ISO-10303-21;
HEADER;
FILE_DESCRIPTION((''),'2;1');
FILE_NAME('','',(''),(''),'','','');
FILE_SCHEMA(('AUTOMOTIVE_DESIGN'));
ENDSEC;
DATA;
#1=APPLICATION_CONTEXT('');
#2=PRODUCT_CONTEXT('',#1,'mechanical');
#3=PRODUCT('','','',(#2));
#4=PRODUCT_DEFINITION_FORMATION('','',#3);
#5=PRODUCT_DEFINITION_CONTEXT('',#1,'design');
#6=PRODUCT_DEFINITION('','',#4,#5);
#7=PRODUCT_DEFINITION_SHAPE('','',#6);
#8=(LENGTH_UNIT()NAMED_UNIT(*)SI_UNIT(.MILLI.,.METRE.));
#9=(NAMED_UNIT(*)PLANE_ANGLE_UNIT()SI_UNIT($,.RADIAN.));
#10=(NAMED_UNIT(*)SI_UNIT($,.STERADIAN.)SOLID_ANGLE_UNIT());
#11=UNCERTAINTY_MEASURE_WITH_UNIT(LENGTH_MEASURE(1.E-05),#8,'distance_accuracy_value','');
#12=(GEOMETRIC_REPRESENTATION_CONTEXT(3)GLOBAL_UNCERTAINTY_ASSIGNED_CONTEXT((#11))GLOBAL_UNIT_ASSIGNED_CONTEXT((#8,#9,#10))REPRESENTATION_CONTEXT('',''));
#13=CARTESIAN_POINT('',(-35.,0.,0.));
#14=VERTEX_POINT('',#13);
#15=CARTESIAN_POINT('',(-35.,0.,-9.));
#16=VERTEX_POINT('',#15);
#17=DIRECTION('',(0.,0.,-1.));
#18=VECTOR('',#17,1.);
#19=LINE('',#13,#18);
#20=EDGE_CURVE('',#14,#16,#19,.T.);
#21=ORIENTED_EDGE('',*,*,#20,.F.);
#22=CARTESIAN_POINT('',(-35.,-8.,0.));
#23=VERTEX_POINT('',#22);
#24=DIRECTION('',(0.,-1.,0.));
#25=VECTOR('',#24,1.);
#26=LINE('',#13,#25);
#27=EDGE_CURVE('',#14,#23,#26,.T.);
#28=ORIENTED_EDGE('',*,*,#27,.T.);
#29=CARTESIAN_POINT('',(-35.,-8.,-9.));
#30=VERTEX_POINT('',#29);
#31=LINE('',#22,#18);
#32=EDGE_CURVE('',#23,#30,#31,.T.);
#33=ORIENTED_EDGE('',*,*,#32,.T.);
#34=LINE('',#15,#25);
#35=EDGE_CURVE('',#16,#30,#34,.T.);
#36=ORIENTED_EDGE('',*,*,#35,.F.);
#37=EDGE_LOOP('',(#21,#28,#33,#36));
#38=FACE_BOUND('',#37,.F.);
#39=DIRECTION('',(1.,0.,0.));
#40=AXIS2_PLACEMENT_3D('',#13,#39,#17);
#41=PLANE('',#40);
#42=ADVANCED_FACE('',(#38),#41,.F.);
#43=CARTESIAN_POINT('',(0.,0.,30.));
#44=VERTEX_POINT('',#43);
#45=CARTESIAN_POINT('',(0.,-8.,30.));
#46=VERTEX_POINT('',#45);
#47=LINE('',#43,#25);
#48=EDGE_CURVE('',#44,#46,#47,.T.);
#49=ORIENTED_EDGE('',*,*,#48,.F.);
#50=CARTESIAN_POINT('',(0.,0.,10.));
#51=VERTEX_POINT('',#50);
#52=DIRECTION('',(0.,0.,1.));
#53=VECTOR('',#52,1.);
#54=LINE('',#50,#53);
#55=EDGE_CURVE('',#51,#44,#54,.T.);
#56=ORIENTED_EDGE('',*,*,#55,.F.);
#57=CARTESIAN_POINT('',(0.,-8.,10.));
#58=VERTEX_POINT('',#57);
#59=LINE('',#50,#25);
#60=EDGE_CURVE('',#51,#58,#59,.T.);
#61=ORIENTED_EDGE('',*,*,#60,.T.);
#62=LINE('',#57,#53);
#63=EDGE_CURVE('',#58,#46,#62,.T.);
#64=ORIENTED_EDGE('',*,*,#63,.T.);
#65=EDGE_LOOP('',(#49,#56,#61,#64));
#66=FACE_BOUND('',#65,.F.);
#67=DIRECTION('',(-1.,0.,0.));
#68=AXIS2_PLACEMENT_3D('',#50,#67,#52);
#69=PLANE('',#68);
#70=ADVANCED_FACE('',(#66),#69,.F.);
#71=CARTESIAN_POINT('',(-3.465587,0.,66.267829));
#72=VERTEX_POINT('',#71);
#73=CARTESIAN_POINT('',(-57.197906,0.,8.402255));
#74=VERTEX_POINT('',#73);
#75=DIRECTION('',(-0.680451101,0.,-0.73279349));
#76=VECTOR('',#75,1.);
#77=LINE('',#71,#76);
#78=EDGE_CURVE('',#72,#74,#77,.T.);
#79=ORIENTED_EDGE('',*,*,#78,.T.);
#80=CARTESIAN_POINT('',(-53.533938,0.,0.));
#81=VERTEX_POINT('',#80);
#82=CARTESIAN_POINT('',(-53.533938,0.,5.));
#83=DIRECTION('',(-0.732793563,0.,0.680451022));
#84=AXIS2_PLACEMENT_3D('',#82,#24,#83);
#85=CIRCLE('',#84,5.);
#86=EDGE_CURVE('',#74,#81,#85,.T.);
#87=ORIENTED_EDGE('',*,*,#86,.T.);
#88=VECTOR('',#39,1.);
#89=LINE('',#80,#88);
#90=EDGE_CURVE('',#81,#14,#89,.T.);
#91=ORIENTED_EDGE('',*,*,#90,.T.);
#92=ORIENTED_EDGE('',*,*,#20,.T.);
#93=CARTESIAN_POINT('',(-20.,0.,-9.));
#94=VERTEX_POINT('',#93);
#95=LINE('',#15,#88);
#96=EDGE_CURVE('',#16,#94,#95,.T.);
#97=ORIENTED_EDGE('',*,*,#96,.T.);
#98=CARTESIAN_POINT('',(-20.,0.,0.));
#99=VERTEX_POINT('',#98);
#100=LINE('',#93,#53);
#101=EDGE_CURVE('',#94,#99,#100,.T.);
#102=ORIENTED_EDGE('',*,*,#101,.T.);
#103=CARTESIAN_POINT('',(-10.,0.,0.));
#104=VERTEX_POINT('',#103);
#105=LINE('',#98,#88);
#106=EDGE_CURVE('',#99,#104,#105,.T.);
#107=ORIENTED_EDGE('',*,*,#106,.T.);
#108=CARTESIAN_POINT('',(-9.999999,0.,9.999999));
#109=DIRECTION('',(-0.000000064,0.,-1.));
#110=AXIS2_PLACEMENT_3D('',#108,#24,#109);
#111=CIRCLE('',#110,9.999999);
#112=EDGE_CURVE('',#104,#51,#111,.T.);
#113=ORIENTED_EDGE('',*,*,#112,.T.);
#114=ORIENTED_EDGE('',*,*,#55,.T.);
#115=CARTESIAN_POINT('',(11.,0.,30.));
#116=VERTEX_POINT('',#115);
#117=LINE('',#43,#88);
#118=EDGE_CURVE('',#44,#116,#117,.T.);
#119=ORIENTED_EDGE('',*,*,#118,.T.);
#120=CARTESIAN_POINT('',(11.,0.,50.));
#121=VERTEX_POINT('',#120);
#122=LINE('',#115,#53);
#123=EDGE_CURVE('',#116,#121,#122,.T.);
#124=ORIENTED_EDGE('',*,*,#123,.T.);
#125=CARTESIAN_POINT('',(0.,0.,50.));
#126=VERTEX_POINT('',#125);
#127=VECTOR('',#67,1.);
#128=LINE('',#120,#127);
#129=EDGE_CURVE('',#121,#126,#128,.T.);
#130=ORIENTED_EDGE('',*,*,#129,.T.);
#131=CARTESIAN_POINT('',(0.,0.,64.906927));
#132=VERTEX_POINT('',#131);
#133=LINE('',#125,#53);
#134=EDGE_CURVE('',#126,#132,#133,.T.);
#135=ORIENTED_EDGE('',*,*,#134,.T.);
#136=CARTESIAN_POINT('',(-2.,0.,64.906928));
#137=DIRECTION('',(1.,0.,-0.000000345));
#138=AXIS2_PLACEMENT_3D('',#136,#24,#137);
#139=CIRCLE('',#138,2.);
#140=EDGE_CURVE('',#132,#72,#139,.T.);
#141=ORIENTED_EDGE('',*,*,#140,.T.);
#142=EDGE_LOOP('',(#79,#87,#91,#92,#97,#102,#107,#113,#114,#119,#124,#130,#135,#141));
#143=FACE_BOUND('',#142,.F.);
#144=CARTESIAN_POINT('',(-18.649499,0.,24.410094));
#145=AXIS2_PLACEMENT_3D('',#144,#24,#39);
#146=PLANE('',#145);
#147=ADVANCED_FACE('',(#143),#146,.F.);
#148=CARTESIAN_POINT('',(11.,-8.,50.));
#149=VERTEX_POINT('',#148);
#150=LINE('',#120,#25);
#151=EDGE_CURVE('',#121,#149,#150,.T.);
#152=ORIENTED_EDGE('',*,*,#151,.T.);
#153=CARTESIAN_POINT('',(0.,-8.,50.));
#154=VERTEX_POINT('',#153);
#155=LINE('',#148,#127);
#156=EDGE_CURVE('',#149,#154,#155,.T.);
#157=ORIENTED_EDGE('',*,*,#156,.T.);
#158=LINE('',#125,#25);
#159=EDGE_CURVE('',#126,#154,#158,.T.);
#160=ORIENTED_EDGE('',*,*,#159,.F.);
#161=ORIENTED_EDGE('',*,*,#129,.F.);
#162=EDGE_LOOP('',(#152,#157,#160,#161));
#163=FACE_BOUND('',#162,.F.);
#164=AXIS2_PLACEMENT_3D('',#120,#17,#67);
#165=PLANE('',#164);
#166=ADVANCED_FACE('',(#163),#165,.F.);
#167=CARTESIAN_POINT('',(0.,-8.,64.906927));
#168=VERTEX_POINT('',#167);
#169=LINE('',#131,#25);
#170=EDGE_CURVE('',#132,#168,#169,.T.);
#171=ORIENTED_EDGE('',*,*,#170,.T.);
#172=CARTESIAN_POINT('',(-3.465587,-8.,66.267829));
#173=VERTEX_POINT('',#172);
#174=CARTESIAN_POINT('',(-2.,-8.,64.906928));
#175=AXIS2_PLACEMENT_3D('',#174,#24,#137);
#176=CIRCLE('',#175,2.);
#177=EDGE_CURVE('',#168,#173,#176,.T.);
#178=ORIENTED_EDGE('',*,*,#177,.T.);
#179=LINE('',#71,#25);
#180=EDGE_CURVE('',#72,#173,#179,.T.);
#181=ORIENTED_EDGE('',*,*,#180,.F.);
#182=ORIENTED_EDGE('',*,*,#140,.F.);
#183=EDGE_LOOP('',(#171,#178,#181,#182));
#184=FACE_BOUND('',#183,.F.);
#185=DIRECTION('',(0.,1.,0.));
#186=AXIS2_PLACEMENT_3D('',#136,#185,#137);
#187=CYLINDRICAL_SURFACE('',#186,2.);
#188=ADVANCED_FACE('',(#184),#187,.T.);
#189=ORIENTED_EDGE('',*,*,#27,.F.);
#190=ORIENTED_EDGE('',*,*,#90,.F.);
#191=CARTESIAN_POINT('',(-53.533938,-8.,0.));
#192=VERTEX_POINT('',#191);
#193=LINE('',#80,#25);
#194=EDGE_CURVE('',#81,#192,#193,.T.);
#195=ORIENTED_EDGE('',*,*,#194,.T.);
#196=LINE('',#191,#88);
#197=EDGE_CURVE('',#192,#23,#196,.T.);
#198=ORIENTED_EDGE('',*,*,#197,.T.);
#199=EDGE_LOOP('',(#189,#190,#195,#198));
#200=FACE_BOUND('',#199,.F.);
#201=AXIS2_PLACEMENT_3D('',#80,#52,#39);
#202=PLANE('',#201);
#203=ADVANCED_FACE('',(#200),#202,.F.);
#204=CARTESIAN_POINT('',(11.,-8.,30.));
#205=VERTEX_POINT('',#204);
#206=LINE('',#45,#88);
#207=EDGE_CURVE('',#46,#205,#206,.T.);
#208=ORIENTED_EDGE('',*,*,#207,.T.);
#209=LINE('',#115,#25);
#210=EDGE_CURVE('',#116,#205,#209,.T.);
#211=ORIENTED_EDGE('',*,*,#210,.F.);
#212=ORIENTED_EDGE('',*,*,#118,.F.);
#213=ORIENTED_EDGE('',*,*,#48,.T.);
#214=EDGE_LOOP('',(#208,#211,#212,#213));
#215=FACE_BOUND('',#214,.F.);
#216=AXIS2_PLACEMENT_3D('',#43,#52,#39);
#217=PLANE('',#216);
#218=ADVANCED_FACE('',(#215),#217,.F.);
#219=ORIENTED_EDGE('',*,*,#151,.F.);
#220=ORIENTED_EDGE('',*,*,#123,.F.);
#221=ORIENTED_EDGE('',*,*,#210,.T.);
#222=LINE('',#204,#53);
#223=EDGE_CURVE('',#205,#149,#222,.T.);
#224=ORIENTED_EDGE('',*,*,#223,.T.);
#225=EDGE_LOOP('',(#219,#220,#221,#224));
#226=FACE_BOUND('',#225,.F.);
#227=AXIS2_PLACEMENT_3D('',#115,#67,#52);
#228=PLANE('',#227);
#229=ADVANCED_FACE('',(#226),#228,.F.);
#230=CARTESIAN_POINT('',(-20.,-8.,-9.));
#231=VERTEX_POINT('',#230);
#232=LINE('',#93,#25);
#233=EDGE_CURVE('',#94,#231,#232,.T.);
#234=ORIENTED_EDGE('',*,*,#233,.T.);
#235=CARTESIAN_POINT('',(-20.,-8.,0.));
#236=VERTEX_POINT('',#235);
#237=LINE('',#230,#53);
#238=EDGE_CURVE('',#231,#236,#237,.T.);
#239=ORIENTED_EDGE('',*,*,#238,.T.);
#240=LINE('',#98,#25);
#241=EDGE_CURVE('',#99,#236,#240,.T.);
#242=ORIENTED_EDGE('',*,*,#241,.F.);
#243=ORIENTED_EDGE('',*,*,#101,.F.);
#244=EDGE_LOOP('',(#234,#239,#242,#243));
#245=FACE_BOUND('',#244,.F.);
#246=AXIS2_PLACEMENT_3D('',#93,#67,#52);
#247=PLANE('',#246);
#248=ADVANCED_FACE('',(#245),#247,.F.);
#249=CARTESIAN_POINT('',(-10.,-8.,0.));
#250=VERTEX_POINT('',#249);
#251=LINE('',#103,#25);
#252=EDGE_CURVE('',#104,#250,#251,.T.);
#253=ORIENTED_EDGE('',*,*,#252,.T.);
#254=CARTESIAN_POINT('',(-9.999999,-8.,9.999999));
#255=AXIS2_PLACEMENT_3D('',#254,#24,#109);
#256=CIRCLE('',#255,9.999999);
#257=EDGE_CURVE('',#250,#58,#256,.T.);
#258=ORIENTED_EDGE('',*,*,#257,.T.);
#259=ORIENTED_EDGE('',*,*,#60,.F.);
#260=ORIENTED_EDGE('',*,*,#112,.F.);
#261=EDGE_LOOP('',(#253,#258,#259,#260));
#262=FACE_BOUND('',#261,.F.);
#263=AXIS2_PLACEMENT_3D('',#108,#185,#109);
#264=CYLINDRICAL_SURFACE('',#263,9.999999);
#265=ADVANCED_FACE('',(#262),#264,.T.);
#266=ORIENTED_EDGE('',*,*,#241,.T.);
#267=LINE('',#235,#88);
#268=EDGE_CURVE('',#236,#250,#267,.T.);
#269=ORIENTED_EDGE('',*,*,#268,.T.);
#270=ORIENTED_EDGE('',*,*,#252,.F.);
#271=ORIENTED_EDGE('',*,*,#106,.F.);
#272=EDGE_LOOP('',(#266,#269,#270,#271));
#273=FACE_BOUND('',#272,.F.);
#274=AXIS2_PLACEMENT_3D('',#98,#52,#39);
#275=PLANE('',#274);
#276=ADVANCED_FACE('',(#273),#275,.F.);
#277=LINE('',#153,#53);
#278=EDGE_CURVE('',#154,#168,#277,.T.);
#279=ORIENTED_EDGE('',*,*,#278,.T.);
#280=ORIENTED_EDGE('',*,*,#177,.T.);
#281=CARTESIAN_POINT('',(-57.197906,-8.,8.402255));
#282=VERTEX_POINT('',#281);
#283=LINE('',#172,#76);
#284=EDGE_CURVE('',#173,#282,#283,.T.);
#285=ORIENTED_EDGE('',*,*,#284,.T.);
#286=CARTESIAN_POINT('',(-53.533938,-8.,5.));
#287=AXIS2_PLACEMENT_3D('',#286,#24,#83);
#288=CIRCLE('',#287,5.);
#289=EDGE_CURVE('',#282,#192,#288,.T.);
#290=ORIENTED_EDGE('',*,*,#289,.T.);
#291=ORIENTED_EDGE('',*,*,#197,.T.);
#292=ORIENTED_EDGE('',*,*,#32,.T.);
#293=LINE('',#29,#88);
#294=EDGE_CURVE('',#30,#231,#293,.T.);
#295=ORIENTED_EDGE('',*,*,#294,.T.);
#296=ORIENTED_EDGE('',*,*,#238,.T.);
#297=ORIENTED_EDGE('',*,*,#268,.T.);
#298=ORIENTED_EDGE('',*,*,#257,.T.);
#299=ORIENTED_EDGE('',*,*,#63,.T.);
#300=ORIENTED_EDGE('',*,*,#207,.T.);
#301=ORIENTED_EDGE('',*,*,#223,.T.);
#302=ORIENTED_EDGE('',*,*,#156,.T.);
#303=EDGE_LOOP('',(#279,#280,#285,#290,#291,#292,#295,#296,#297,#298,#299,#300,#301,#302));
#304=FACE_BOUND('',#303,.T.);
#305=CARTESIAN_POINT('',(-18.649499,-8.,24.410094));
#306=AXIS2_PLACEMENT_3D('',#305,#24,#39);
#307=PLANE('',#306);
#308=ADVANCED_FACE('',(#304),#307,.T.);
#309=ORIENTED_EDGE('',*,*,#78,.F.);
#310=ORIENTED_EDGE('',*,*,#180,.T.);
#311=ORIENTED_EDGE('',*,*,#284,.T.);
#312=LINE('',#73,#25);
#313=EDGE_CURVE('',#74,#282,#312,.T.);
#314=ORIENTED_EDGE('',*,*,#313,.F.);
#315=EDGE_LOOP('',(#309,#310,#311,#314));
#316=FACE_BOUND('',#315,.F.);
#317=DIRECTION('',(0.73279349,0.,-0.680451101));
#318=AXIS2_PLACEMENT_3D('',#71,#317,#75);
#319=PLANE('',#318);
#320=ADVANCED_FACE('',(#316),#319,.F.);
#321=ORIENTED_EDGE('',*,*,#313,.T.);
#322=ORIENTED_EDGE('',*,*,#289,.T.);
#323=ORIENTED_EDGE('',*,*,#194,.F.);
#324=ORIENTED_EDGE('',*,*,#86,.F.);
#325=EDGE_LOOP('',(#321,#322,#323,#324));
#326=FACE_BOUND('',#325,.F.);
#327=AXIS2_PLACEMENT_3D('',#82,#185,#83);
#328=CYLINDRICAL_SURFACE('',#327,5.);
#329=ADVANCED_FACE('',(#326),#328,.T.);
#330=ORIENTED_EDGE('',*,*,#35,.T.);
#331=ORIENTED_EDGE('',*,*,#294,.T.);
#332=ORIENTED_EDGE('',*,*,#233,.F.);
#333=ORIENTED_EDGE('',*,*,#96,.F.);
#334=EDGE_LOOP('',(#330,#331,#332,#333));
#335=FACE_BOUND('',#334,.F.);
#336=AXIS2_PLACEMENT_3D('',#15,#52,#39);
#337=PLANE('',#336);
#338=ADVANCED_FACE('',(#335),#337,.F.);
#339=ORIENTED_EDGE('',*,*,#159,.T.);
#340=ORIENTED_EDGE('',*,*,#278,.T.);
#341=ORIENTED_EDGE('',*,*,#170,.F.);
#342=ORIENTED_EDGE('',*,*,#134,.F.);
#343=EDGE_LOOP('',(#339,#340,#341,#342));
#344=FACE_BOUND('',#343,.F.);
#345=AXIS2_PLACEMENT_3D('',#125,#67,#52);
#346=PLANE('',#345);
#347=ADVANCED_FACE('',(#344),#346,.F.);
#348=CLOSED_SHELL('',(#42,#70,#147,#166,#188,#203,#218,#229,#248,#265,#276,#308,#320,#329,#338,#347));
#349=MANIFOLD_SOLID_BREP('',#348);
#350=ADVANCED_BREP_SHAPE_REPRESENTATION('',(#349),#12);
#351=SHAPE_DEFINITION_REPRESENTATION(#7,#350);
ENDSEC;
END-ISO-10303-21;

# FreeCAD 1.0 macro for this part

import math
import FreeCAD as App
import Part
import Sketcher
from FreeCAD import Vector
Q = App.Units.Quantity

doc = App.newDocument("Part")
body = doc.addObject("PartDesign::Body", "Body")

sketch1 = body.newObject("Sketcher::SketchObject", "Sketch")
sketch1.AttachmentSupport = (doc.getObject("XZ_Plane"), [""])
sketch1.MapMode = "FlatFace"
sketch1.addGeometry(Part.ArcOfCircle(Part.Circle(Vector(-53.533938, 5, 0), Vector(0, 0, 1), 5), math.radians(137.121102), math.radians(270.000003)), False)
sketch1.addGeometry(Part.LineSegment(Vector(-53.533938, 0, 0), Vector(-35, 0, 0)), False)
sketch1.addGeometry(Part.LineSegment(Vector(-35, 0, 0), Vector(-35, -9, 0)), False)
sketch1.addGeometry(Part.LineSegment(Vector(-35, -9, 0), Vector(-20, -9, 0)), False)
sketch1.addGeometry(Part.LineSegment(Vector(-20, -9, 0), Vector(-20, 0, 0)), False)
sketch1.addGeometry(Part.LineSegment(Vector(-20, 0, 0), Vector(-10, 0, 0)), False)
sketch1.addGeometry(Part.ArcOfCircle(Part.Circle(Vector(-9.999999, 9.999999, 0), Vector(0, 0, 1), 9.999999), math.radians(-90.000004), math.radians(0.000004)), False)
sketch1.addGeometry(Part.LineSegment(Vector(0, 10, 0), Vector(0, 30, 0)), False)
sketch1.addGeometry(Part.LineSegment(Vector(0, 30, 0), Vector(11, 30, 0)), False)
sketch1.addGeometry(Part.LineSegment(Vector(11, 30, 0), Vector(11, 50, 0)), False)
sketch1.addGeometry(Part.LineSegment(Vector(11, 50, 0), Vector(0, 50, 0)), False)
sketch1.addGeometry(Part.LineSegment(Vector(0, 50, 0), Vector(0, 64.906927, 0)), False)
sketch1.addGeometry(Part.ArcOfCircle(Part.Circle(Vector(-2, 64.906928, 0), Vector(0, 0, 1), 2), math.radians(-0.00002), math.radians(137.121122)), False)
sketch1.addGeometry(Part.LineSegment(Vector(-3.465587, 66.267829, 0), Vector(-57.197906, 8.402255, 0)), False)
sketch1.addConstraint(Sketcher.Constraint("Coincident", 0, 2, 1, 1))
sketch1.addConstraint(Sketcher.Constraint("Coincident", 1, 2, 2, 1))
sketch1.addConstraint(Sketcher.Constraint("Coincident", 2, 2, 3, 1))
sketch1.addConstraint(Sketcher.Constraint("Coincident", 3, 2, 4, 1))
sketch1.addConstraint(Sketcher.Constraint("Coincident", 4, 2, 5, 1))
sketch1.addConstraint(Sketcher.Constraint("Coincident", 5, 2, 6, 1))
sketch1.addConstraint(Sketcher.Constraint("Coincident", 6, 2, 7, 1))
sketch1.addConstraint(Sketcher.Constraint("Coincident", 7, 2, 8, 1))
sketch1.addConstraint(Sketcher.Constraint("Coincident", 8, 2, 9, 1))
sketch1.addConstraint(Sketcher.Constraint("Coincident", 9, 2, 10, 1))
sketch1.addConstraint(Sketcher.Constraint("Coincident", 10, 2, 11, 1))
sketch1.addConstraint(Sketcher.Constraint("Coincident", 11, 2, 12, 1))
sketch1.addConstraint(Sketcher.Constraint("Coincident", 12, 2, 13, 1))
sketch1.addConstraint(Sketcher.Constraint("Coincident", 13, 2, 0, 1))
sketch1.addConstraint(Sketcher.Constraint("Horizontal", 1))
sketch1.addConstraint(Sketcher.Constraint("Vertical", 2))
sketch1.addConstraint(Sketcher.Constraint("Horizontal", 3))
sketch1.addConstraint(Sketcher.Constraint("Vertical", 4))
sketch1.addConstraint(Sketcher.Constraint("Horizontal", 5))
sketch1.addConstraint(Sketcher.Constraint("Vertical", 7))
sketch1.addConstraint(Sketcher.Constraint("Horizontal", 8))
sketch1.addConstraint(Sketcher.Constraint("Vertical", 9))
sketch1.addConstraint(Sketcher.Constraint("Horizontal", 10))
sketch1.addConstraint(Sketcher.Constraint("Vertical", 11))
sketch1.addConstraint(Sketcher.Constraint("PointOnObject", 0, 2, -1))
sketch1.addConstraint(Sketcher.Constraint("PointOnObject", 4, 2, -1))
sketch1.addConstraint(Sketcher.Constraint("PointOnObject", 6, 2, -2))
sketch1.addConstraint(Sketcher.Constraint("PointOnObject", 10, 2, -2))
sketch1.addConstraint(Sketcher.Constraint("Radius", 0, Q("5 mm")))
sketch1.addConstraint(Sketcher.Constraint("Radius", 6, Q("9.999999 mm")))
sketch1.addConstraint(Sketcher.Constraint("Radius", 12, Q("2 mm")))
sketch1.addConstraint(Sketcher.Constraint("DistanceX", 3, 1, 3, 2, Q("15 mm")))
sketch1.addConstraint(Sketcher.Constraint("DistanceX", 5, 1, 5, 2, Q("10 mm")))
sketch1.addConstraint(Sketcher.Constraint("DistanceX", 8, 1, 8, 2, Q("11 mm")))
sketch1.addConstraint(Sketcher.Constraint("DistanceY", 2, 2, 2, 1, Q("9 mm")))
sketch1.addConstraint(Sketcher.Constraint("DistanceY", 7, 1, 7, 2, Q("20 mm")))
sketch1.addConstraint(Sketcher.Constraint("DistanceY", 9, 1, 9, 2, Q("20 mm")))
sketch1.addConstraint(Sketcher.Constraint("DistanceX", 1, 2, -1, 1, Q("35 mm")))
sketch1.addConstraint(Sketcher.Constraint("DistanceY", -1, 1, 6, 2, Q("10 mm")))
sketch1.addConstraint(Sketcher.Constraint("DistanceY", 12, 3, 12, 2, Q("1.360901 mm")))
sketch1.addConstraint(Sketcher.Constraint("DistanceY", 11, 2, 12, 2, Q("1.360902 mm")))
sketch1.addConstraint(Sketcher.Constraint("Distance", 13, Q("78.965732 mm")))
sketch1.addConstraint(Sketcher.Constraint("DistanceX", 1, 1, 1, 2, Q("18.533938 mm")))
sketch1.addConstraint(Sketcher.Constraint("DistanceY", 11, 1, 11, 2, Q("14.906927 mm")))
sketch1.addConstraint(Sketcher.Constraint("DistanceX", 0, 3, -1, 1, Q("53.533938 mm")))
pad1 = body.newObject("PartDesign::Pad", "Pad")
pad1.Profile = sketch1
pad1.Length = 8

doc.recompute()
